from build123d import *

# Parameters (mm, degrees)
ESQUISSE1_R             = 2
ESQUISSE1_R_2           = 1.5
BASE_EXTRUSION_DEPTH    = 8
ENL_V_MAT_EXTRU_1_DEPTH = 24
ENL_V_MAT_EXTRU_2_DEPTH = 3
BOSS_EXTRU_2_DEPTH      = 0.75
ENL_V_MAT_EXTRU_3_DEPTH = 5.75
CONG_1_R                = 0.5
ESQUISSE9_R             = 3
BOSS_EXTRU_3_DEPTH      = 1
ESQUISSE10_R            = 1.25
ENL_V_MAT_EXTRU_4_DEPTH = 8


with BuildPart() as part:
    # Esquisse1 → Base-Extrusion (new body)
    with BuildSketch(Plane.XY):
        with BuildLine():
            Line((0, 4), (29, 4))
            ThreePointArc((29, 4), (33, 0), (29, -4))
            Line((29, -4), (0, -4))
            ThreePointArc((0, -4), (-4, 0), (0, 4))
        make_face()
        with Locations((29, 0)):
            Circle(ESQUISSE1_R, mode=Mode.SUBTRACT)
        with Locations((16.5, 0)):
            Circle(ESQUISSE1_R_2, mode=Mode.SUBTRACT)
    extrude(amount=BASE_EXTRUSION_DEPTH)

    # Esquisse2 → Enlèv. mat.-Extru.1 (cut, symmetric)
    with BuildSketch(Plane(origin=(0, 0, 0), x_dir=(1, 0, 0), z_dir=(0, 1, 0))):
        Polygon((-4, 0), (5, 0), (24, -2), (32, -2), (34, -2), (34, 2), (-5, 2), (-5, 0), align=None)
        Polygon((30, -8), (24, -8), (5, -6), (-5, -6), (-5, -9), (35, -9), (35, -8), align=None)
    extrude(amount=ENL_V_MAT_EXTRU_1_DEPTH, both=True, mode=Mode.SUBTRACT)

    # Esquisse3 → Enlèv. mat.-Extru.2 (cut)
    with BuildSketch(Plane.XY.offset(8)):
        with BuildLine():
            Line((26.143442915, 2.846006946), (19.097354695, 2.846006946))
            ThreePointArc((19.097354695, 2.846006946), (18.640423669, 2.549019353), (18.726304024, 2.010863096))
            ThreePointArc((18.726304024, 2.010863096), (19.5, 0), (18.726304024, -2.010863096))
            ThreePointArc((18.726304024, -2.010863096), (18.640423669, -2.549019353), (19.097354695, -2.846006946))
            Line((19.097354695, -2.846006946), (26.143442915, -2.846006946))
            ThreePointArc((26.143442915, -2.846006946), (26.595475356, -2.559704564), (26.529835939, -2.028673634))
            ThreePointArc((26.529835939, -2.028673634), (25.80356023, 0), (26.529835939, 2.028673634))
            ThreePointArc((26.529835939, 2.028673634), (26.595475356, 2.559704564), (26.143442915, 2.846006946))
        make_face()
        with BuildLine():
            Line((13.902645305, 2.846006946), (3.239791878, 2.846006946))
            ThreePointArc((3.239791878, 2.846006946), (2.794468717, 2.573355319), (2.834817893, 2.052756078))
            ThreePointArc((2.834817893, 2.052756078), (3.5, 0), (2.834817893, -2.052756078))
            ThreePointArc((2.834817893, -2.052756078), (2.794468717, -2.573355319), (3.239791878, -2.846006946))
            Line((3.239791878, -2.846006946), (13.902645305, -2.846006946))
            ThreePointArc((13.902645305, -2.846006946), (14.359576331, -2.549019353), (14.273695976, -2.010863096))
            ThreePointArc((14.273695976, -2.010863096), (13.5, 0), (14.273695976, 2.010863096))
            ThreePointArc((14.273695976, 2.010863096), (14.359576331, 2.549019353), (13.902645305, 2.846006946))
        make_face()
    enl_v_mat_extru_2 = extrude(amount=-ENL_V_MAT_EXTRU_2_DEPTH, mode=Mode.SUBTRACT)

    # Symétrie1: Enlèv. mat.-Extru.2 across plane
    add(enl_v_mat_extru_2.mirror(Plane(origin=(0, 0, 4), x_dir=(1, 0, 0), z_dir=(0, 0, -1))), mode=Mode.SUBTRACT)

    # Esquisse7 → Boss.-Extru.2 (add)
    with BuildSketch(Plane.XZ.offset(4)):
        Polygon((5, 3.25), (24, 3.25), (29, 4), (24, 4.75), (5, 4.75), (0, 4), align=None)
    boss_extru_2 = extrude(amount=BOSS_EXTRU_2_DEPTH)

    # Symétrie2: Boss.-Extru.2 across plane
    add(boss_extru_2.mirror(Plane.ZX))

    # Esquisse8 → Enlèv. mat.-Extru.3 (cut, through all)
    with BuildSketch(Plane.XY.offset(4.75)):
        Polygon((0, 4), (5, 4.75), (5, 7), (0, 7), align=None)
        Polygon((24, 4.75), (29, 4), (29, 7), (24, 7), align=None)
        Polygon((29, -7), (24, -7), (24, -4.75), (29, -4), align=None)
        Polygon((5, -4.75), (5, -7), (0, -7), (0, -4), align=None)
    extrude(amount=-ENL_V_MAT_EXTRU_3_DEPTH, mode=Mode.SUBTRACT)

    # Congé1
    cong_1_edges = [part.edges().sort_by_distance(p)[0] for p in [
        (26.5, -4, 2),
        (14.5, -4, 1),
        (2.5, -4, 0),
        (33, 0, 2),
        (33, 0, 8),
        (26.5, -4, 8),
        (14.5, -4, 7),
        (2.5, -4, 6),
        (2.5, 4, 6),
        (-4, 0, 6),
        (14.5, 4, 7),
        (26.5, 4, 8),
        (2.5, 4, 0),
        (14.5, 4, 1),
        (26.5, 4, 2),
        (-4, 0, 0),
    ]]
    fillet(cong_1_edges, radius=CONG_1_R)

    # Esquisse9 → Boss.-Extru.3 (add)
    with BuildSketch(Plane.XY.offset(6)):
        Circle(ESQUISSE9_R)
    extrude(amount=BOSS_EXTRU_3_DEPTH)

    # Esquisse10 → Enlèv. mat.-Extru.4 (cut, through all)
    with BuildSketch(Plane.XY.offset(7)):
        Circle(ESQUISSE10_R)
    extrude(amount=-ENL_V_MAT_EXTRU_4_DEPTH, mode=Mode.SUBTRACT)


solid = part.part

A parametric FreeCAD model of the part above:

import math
import FreeCAD as App
import Part
import Sketcher

V = App.Vector
Q = App.Units.Quantity


def edges_at(feature, points):
    """Names of the edges that pass closest to the given points."""
    edges = feature.Shape.Edges
    near = lambda p: min(range(len(edges)), key=lambda i: edges[i].distToShape(Part.Vertex(*p))[0])
    return sorted({f"Edge{near(p) + 1}" for p in points})


def add_polygon(sketch, points):
    """Adds a closed chain of lines whose ends are joined by coincident constraints."""
    first, n = sketch.GeometryCount, len(points)
    for a, b in zip(points, points[1:] + points[:1]):
        sketch.addGeometry(Part.LineSegment(App.Vector(*a, 0), App.Vector(*b, 0)), False)
    for i in range(n):
        sketch.addConstraint(Sketcher.Constraint("Coincident", first + i, 2, first + (i + 1) % n, 1))

doc = App.newDocument("Part")
params = doc.addObject("Spreadsheet::Sheet", "Params")
for row, (alias, value) in enumerate([
    ("sketch1_diameter", "4 mm"),
    ("sketch1_diameter2", "3 mm"),
    ("sketch1_radius", "4 mm"),
    ("sketch1_width", "29 mm"),
    ("pad1_length", "8 mm"),
    ("sketch2_width", "10 mm"),
    ("sketch2_width2", "39 mm"),
    ("sketch2_width3", "40 mm"),
    ("sketch2_height", "4 mm"),
    ("sketch2_height2", "2 mm"),
    ("pocket1_length", "48 mm"),
    ("sketch3_radius", "3 mm"),
    ("sketch3_radius2", "0.5 mm"),
    ("sketch3_radius3", "3.5 mm"),
    ("pocket2_length", "3 mm"),
    ("sketch4_width", "19 mm"),
    ("pad2_length", "0.75 mm"),
    ("sketch5_width", "5 mm"),
    ("sketch5_height", "3 mm"),
    ("sketch5_height2", "2.25 mm"),
    ("fillet_radius", "0.5 mm"),
    ("sketch6_diameter", "6 mm"),
    ("pad3_length", "1 mm"),
    ("sketch7_diameter", "2.5 mm"),
], start=1):
    params.set(f"A{row}", alias)
    params.set(f"B{row}", "=" + value)
    params.setAlias(f"B{row}", alias)

body = doc.addObject("PartDesign::Body", "Body")

# Sketch on XY plane
sketch1 = doc.addObject("Sketcher::SketchObject", "Sketch")
body.addObject(sketch1)
sketch1.AttachmentSupport = (doc.XY_Plane, [""])
sketch1.MapMode = "FlatFace"
sketch1.addGeometry(Part.LineSegment(V(29, 4, 0), V(0, 4, 0)), False)
sketch1.addGeometry(Part.ArcOfCircle(Part.Circle(V(0, 0, 0), V(0, 0, 1), 4), math.radians(90), math.radians(270)), False)
sketch1.addGeometry(Part.LineSegment(V(0, -4, 0), V(29, -4, 0)), False)
sketch1.addGeometry(Part.ArcOfCircle(Part.Circle(V(29, 0, 0), V(0, 0, 1), 4), math.radians(-90), math.radians(90)), False)
sketch1.addGeometry(Part.Circle(V(29, 0, 0), V(0, 0, 1), 2), False)
sketch1.addGeometry(Part.Circle(V(16.5, 0, 0), V(0, 0, 1), 1.5), False)
sketch1.addConstraint(Sketcher.Constraint("Tangent", 0, 2, 1, 1))
sketch1.addConstraint(Sketcher.Constraint("Tangent", 1, 2, 2, 1))
sketch1.addConstraint(Sketcher.Constraint("Tangent", 2, 2, 3, 1))
sketch1.addConstraint(Sketcher.Constraint("Tangent", 3, 2, 0, 1))
sketch1.addConstraint(Sketcher.Constraint("Horizontal", 0))
sketch1.addConstraint(Sketcher.Constraint("Horizontal", 2))
sketch1.addConstraint(Sketcher.Constraint("Coincident", 1, 3, -1, 1))
sketch1.addConstraint(Sketcher.Constraint("Coincident", 4, 3, 3, 3))
sketch1.addConstraint(Sketcher.Constraint("PointOnObject", 5, 3, -1))
sketch1.addConstraint(Sketcher.Constraint("Diameter", 4, Q("4 mm")))
sketch1.addConstraint(Sketcher.Constraint("Diameter", 5, Q("3 mm")))
sketch1.addConstraint(Sketcher.Constraint("Radius", 1, Q("4 mm")))
sketch1.addConstraint(Sketcher.Constraint("DistanceX", 0, 2, 0, 1, Q("29 mm")))
sketch1.addConstraint(Sketcher.Constraint("DistanceX", -1, 1, 5, 3, Q("16.5 mm")))
sketch1.setExpression("Constraints[9]", "Params.sketch1_diameter")
sketch1.setExpression("Constraints[10]", "Params.sketch1_diameter2")
sketch1.setExpression("Constraints[11]", "Params.sketch1_radius")
sketch1.setExpression("Constraints[12]", "Params.sketch1_width")
pad1 = doc.addObject("PartDesign::Pad", "Pad")
body.addObject(pad1)
pad1.Profile = sketch1
pad1.setExpression("Length", "Params.pad1_length")

# Sketch on XZ plane
sketch2 = doc.addObject("Sketcher::SketchObject", "Sketch001")
body.addObject(sketch2)
sketch2.AttachmentSupport = (doc.XZ_Plane, [""])
sketch2.MapMode = "FlatFace"
add_polygon(sketch2, [(5, 0), (24, 2), (34, 2), (34, -2), (-5, -2), (-5, 0)])  # lines 0-5
add_polygon(sketch2, [(24, 8), (5, 6), (-5, 6), (-5, 9), (35, 9), (35, 8)])  # lines 6-11
sketch2.addConstraint(Sketcher.Constraint("Horizontal", 1))
sketch2.addConstraint(Sketcher.Constraint("Vertical", 2))
sketch2.addConstraint(Sketcher.Constraint("Horizontal", 3))
sketch2.addConstraint(Sketcher.Constraint("Vertical", 4))
sketch2.addConstraint(Sketcher.Constraint("Horizontal", 5))
sketch2.addConstraint(Sketcher.Constraint("Horizontal", 7))
sketch2.addConstraint(Sketcher.Constraint("Vertical", 8))
sketch2.addConstraint(Sketcher.Constraint("Horizontal", 9))
sketch2.addConstraint(Sketcher.Constraint("Vertical", 10))
sketch2.addConstraint(Sketcher.Constraint("Horizontal", 11))
sketch2.addConstraint(Sketcher.Constraint("Symmetric", 4, 2, 5, 2, -1, 1))
sketch2.addConstraint(Sketcher.Constraint("Parallel", 0, 6))
sketch2.addConstraint(Sketcher.Constraint("Vertical", 5, 2, 6, 2))
sketch2.addConstraint(Sketcher.Constraint("Vertical", 4, 2, 7, 2))
sketch2.addConstraint(Sketcher.Constraint("Vertical", 0, 2, 11, 2))
sketch2.addConstraint(Sketcher.Constraint("Equal", 1, 5))
sketch2.addConstraint(Sketcher.Constraint("DistanceX", 1, 1, 1, 2, Q("10 mm")))
sketch2.addConstraint(Sketcher.Constraint("DistanceX", 3, 2, 3, 1, Q("39 mm")))
sketch2.addConstraint(Sketcher.Constraint("DistanceX", 9, 1, 9, 2, Q("40 mm")))
sketch2.addConstraint(Sketcher.Constraint("DistanceY", 2, 2, 2, 1, Q("4 mm")))
sketch2.addConstraint(Sketcher.Constraint("DistanceY", 4, 1, 4, 2, Q("2 mm")))
sketch2.addConstraint(Sketcher.Constraint("DistanceY", 8, 1, 8, 2, Q("3 mm")))
sketch2.addConstraint(Sketcher.Constraint("DistanceY", -1, 1, 6, 2, Q("6 mm")))
sketch2.setExpression("Constraints[28]", "Params.sketch2_width")
sketch2.setExpression("Constraints[29]", "Params.sketch2_width2")
sketch2.setExpression("Constraints[30]", "Params.sketch2_width3")
sketch2.setExpression("Constraints[31]", "Params.sketch2_height")
sketch2.setExpression("Constraints[32]", "Params.sketch2_height2")
pocket1 = doc.addObject("PartDesign::Pocket", "Pocket")
body.addObject(pocket1)
pocket1.Profile = sketch2
pocket1.setExpression("Length", "Params.pocket1_length")
pocket1.Midplane = True

# Sketch on XY plane
sketch3 = doc.addObject("Sketcher::SketchObject", "Sketch002")
body.addObject(sketch3)
sketch3.AttachmentSupport = (doc.XY_Plane, [""])
sketch3.MapMode = "FlatFace"
sketch3.AttachmentOffset = App.Placement(V(0, 0, 8), App.Rotation())
sketch3.addGeometry(Part.LineSegment(V(26.143443, 2.846007, 0), V(19.097355, 2.846007, 0)), False)
sketch3.addGeometry(Part.ArcOfCircle(Part.Circle(V(19.097355, 2.346007, 0), V(0, 0, 1), 0.5), math.radians(90), math.radians(222.089273)), False)
sketch3.addGeometry(Part.ArcOfCircle(Part.Circle(V(16.5, 0, 0), V(0, 0, 1), 3), math.radians(-42.089273), math.radians(42.089273)), False)
sketch3.addGeometry(Part.ArcOfCircle(Part.Circle(V(19.097355, -2.346007, 0), V(0, 0, 1), 0.5), math.radians(137.910727), math.radians(270)), False)
sketch3.addGeometry(Part.LineSegment(V(19.097355, -2.846007, 0), V(26.143443, -2.846007, 0)), False)
sketch3.addGeometry(Part.ArcOfCircle(Part.Circle(V(26.143443, -2.346007, 0), V(0, 0, 1), 0.5), math.radians(-90), math.radians(39.395263)), False)
sketch3.addGeometry(Part.ArcOfCircle(Part.Circle(V(29, 0, 0), V(0, 0, 1), 3.19644), math.radians(140.604737), math.radians(219.395263)), False)
sketch3.addGeometry(Part.ArcOfCircle(Part.Circle(V(26.143443, 2.346007, 0), V(0, 0, 1), 0.5), math.radians(-39.395263), math.radians(90)), False)
sketch3.addGeometry(Part.LineSegment(V(13.902645, 2.846007, 0), V(3.239792, 2.846007, 0)), False)
sketch3.addGeometry(Part.ArcOfCircle(Part.Circle(V(3.239792, 2.346007, 0), V(0, 0, 1), 0.5), math.radians(90), math.radians(215.909152)), False)
sketch3.addGeometry(Part.ArcOfCircle(Part.Circle(V(0, 0, 0), V(0, 0, 1), 3.5), math.radians(-35.909152), math.radians(35.909152)), False)
sketch3.addGeometry(Part.ArcOfCircle(Part.Circle(V(3.239792, -2.346007, 0), V(0, 0, 1), 0.5), math.radians(144.090848), math.radians(270)), False)
sketch3.addGeometry(Part.LineSegment(V(3.239792, -2.846007, 0), V(13.902645, -2.846007, 0)), False)
sketch3.addGeometry(Part.ArcOfCircle(Part.Circle(V(13.902645, -2.346007, 0), V(0, 0, 1), 0.5), math.radians(-90), math.radians(42.089273)), False)
sketch3.addGeometry(Part.ArcOfCircle(Part.Circle(V(16.5, 0, 0), V(0, 0, 1), 3), math.radians(137.910727), math.radians(222.089273)), False)
sketch3.addGeometry(Part.ArcOfCircle(Part.Circle(V(13.902645, 2.346007, 0), V(0, 0, 1), 0.5), math.radians(-42.089273), math.radians(90)), False)
sketch3.addConstraint(Sketcher.Constraint("Tangent", 0, 2, 1, 1))
sketch3.addConstraint(Sketcher.Constraint("Tangent", 1, 2, 2, 2))
sketch3.addConstraint(Sketcher.Constraint("Tangent", 2, 1, 3, 1))
sketch3.addConstraint(Sketcher.Constraint("Tangent", 3, 2, 4, 1))
sketch3.addConstraint(Sketcher.Constraint("Tangent", 4, 2, 5, 1))
sketch3.addConstraint(Sketcher.Constraint("Tangent", 5, 2, 6, 2))
sketch3.addConstraint(Sketcher.Constraint("Tangent", 6, 1, 7, 1))
sketch3.addConstraint(Sketcher.Constraint("Tangent", 7, 2, 0, 1))
sketch3.addConstraint(Sketcher.Constraint("Tangent", 8, 2, 9, 1))
sketch3.addConstraint(Sketcher.Constraint("Tangent", 9, 2, 10, 2))
sketch3.addConstraint(Sketcher.Constraint("Tangent", 10, 1, 11, 1))
sketch3.addConstraint(Sketcher.Constraint("Tangent", 11, 2, 12, 1))
sketch3.addConstraint(Sketcher.Constraint("Tangent", 12, 2, 13, 1))
sketch3.addConstraint(Sketcher.Constraint("Tangent", 13, 2, 14, 2))
sketch3.addConstraint(Sketcher.Constraint("Tangent", 14, 1, 15, 1))
sketch3.addConstraint(Sketcher.Constraint("Tangent", 15, 2, 8, 1))
sketch3.addConstraint(Sketcher.Constraint("Horizontal", 0))
sketch3.addConstraint(Sketcher.Constraint("Horizontal", 4))
sketch3.addConstraint(Sketcher.Constraint("Horizontal", 8))
sketch3.addConstraint(Sketcher.Constraint("Horizontal", 12))
sketch3.addConstraint(Sketcher.Constraint("Coincident", 10, 3, -1, 1))
sketch3.addConstraint(Sketcher.Constraint("Coincident", 14, 3, 2, 3))
sketch3.addConstraint(Sketcher.Constraint("Equal", 1, 3))
sketch3.addConstraint(Sketcher.Constraint("Equal", 3, 5))
sketch3.addConstraint(Sketcher.Constraint("Equal", 5, 7))
sketch3.addConstraint(Sketcher.Constraint("Equal", 7, 9))
sketch3.addConstraint(Sketcher.Constraint("Equal", 9, 11))
sketch3.addConstraint(Sketcher.Constraint("Equal", 11, 13))
sketch3.addConstraint(Sketcher.Constraint("Equal", 2, 14))
sketch3.addConstraint(Sketcher.Constraint("Equal", 13, 15))
sketch3.addConstraint(Sketcher.Constraint("Symmetric", 1, 3, 3, 3, -1))
sketch3.addConstraint(Sketcher.Constraint("PointOnObject", 6, 3, -1))
sketch3.addConstraint(Sketcher.Constraint("Horizontal", 7, 3, 9, 3))
sketch3.addConstraint(Sketcher.Constraint("Horizontal", 5, 3, 11, 3))
sketch3.addConstraint(Sketcher.Constraint("Radius", 2, Q("3 mm")))
sketch3.addConstraint(Sketcher.Constraint("Radius", 1, Q("0.5 mm")))
sketch3.addConstraint(Sketcher.Constraint("Radius", 10, Q("3.5 mm")))
sketch3.addConstraint(Sketcher.Constraint("DistanceX", -1, 1, 6, 3, Q("29 mm")))
sketch3.addConstraint(Sketcher.Constraint("DistanceX", -1, 1, 2, 3, Q("16.5 mm")))
sketch3.addConstraint(Sketcher.Constraint("Radius", 6, Q("3.19644 mm")))
sketch3.addConstraint(Sketcher.Constraint("DistanceX", 0, 2, 0, 1, Q("7.046088 mm")))
sketch3.setExpression("Constraints[34]", "Params.sketch3_radius")
sketch3.setExpression("Constraints[35]", "Params.sketch3_radius2")
sketch3.setExpression("Constraints[36]", "Params.sketch3_radius3")
pocket2 = doc.addObject("PartDesign::Pocket", "Pocket001")
body.addObject(pocket2)
pocket2.Profile = sketch3
pocket2.setExpression("Length", "Params.pocket2_length")
doc.recompute()

datumplane = doc.addObject("PartDesign::Plane", "DatumPlane")
body.addObject(datumplane)
datumplane.AttachmentSupport = (doc.XY_Plane, [""])
datumplane.MapMode = "FlatFace"
datumplane.AttachmentOffset = App.Placement(V(0, 0, 4), App.Rotation())
mirrored = doc.addObject("PartDesign::Mirrored", "Mirrored")
body.addObject(mirrored)
mirrored.Originals = [pocket2]
mirrored.MirrorPlane = (datumplane, [""])
body.Tip = mirrored

# Sketch on XZ plane
sketch4 = doc.addObject("Sketcher::SketchObject", "Sketch003")
body.addObject(sketch4)
sketch4.AttachmentSupport = (doc.XZ_Plane, [""])
sketch4.MapMode = "FlatFace"
sketch4.AttachmentOffset = App.Placement(V(0, 0, 4), App.Rotation())
add_polygon(sketch4, [(5, 3.25), (24, 3.25), (29, 4), (24, 4.75), (5, 4.75), (0, 4)])  # lines 0-5
sketch4.addConstraint(Sketcher.Constraint("Horizontal", 0))
sketch4.addConstraint(Sketcher.Constraint("Horizontal", 3))
sketch4.addConstraint(Sketcher.Constraint("PointOnObject", 4, 2, -2))
sketch4.addConstraint(Sketcher.Constraint("Parallel", 1, 4))
sketch4.addConstraint(Sketcher.Constraint("Parallel", 2, 5))
sketch4.addConstraint(Sketcher.Constraint("Horizontal", 1, 2, 4, 2))
sketch4.addConstraint(Sketcher.Constraint("Vertical", 0, 2, 2, 2))
sketch4.addConstraint(Sketcher.Constraint("Vertical", 3, 2, 5, 2))
sketch4.addConstraint(Sketcher.Constraint("DistanceX", 0, 1, 0, 2, Q("19 mm")))
sketch4.addConstraint(Sketcher.Constraint("DistanceX", -1, 1, 0, 2, Q("24 mm")))
sketch4.addConstraint(Sketcher.Constraint("DistanceY", -1, 1, 1, 2, Q("4 mm")))
sketch4.addConstraint(Sketcher.Constraint("DistanceY", 0, 2, 2, 2, Q("1.5 mm")))
sketch4.setExpression("Constraints[14]", "Params.sketch4_width")
pad2 = doc.addObject("PartDesign::Pad", "Pad001")
body.addObject(pad2)
pad2.Profile = sketch4
pad2.setExpression("Length", "Params.pad2_length")
doc.recompute()

mirrored2 = doc.addObject("PartDesign::Mirrored", "Mirrored001")
body.addObject(mirrored2)
mirrored2.Originals = [pad2]
mirrored2.MirrorPlane = (doc.XZ_Plane, [""])
body.Tip = mirrored2

# Sketch on XY plane
sketch5 = doc.addObject("Sketcher::SketchObject", "Sketch004")
body.addObject(sketch5)
sketch5.AttachmentSupport = (doc.XY_Plane, [""])
sketch5.MapMode = "FlatFace"
sketch5.AttachmentOffset = App.Placement(V(0, 0, 4.75), App.Rotation())
add_polygon(sketch5, [(0, 4), (5, 4.75), (5, 7), (0, 7)])  # lines 0-3
add_polygon(sketch5, [(24, 4.75), (29, 4), (29, 7), (24, 7)])  # lines 4-7
add_polygon(sketch5, [(24, -7), (29, -7), (29, -4), (24, -4.75)])  # lines 8-11
add_polygon(sketch5, [(5, -7), (5, -4.75), (0, -4), (0, -7)])  # lines 12-15
sketch5.addConstraint(Sketcher.Constraint("Vertical", 1))
sketch5.addConstraint(Sketcher.Constraint("Horizontal", 2))
sketch5.addConstraint(Sketcher.Constraint("Vertical", 3))
sketch5.addConstraint(Sketcher.Constraint("Vertical", 5))
sketch5.addConstraint(Sketcher.Constraint("Horizontal", 6))
sketch5.addConstraint(Sketcher.Constraint("Vertical", 7))
sketch5.addConstraint(Sketcher.Constraint("Horizontal", 8))
sketch5.addConstraint(Sketcher.Constraint("Vertical", 9))
sketch5.addConstraint(Sketcher.Constraint("Vertical", 11))
sketch5.addConstraint(Sketcher.Constraint("Vertical", 12))
sketch5.addConstraint(Sketcher.Constraint("Vertical", 14))
sketch5.addConstraint(Sketcher.Constraint("Horizontal", 15))
sketch5.addConstraint(Sketcher.Constraint("Symmetric", 3, 2, 13, 2, -1, 1))
sketch5.addConstraint(Sketcher.Constraint("Symmetric", 5, 2, 8, 2, -1))
sketch5.addConstraint(Sketcher.Constraint("Symmetric", 7, 2, 10, 2, -1))
sketch5.addConstraint(Sketcher.Constraint("Symmetric", 0, 2, 12, 2, -1))
sketch5.addConstraint(Sketcher.Constraint("Symmetric", 2, 2, 14, 2, -1))
sketch5.addConstraint(Sketcher.Constraint("Parallel", 0, 10))
sketch5.addConstraint(Sketcher.Constraint("Parallel", 4, 13))
sketch5.addConstraint(Sketcher.Constraint("Horizontal", 3, 2, 4, 2))
sketch5.addConstraint(Sketcher.Constraint("Horizontal", 2, 2, 5, 2))
sketch5.addConstraint(Sketcher.Constraint("Horizontal", 0, 2, 7, 2))
sketch5.addConstraint(Sketcher.Constraint("DistanceX", 2, 2, 2, 1, Q("5 mm")))
sketch5.addConstraint(Sketcher.Constraint("DistanceY", 3, 2, 3, 1, Q("3 mm")))
sketch5.addConstraint(Sketcher.Constraint("DistanceY", -1, 1, 1, 2, Q("7 mm")))
sketch5.addConstraint(Sketcher.Constraint("DistanceX", -1, 1, 4, 2, Q("29 mm")))
sketch5.addConstraint(Sketcher.Constraint("DistanceY", 1, 1, 1, 2, Q("2.25 mm")))
sketch5.setExpression("Constraints[38]", "Params.sketch5_width")
sketch5.setExpression("Constraints[39]", "Params.sketch5_height")
sketch5.setExpression("Constraints[42]", "Params.sketch5_height2")
pocket3 = doc.addObject("PartDesign::Pocket", "Pocket002")
body.addObject(pocket3)
pocket3.Profile = sketch5
pocket3.Type = "ThroughAll"
doc.recompute()

fillet = doc.addObject("PartDesign::Fillet", "Fillet")
body.addObject(fillet)
fillet.Base = (pocket3, edges_at(pocket3, [
    (26.5, -4, 2),
    (14.5, -4, 1),
    (2.5, -4, 0),
    (33, 0, 2),
    (33, 0, 8),
    (26.5, -4, 8),
    (14.5, -4, 7),
    (2.5, -4, 6),
    (2.5, 4, 6),
    (-4, 0, 6),
    (14.5, 4, 7),
    (26.5, 4, 8),
    (2.5, 4, 0),
    (14.5, 4, 1),
    (26.5, 4, 2),
    (-4, 0, 0),
]))
fillet.setExpression("Radius", "Params.fillet_radius")

# Sketch on XY plane
sketch6 = doc.addObject("Sketcher::SketchObject", "Sketch005")
body.addObject(sketch6)
sketch6.AttachmentSupport = (doc.XY_Plane, [""])
sketch6.MapMode = "FlatFace"
sketch6.AttachmentOffset = App.Placement(V(0, 0, 6), App.Rotation())
sketch6.addGeometry(Part.Circle(V(0, 0, 0), V(0, 0, 1), 3), False)
sketch6.addConstraint(Sketcher.Constraint("Coincident", 0, 3, -1, 1))
sketch6.addConstraint(Sketcher.Constraint("Diameter", 0, Q("6 mm")))
sketch6.setExpression("Constraints[1]", "Params.sketch6_diameter")
pad3 = doc.addObject("PartDesign::Pad", "Pad002")
body.addObject(pad3)
pad3.Profile = sketch6
pad3.setExpression("Length", "Params.pad3_length")

# Sketch on XY plane
sketch7 = doc.addObject("Sketcher::SketchObject", "Sketch006")
body.addObject(sketch7)
sketch7.AttachmentSupport = (doc.XY_Plane, [""])
sketch7.MapMode = "FlatFace"
sketch7.AttachmentOffset = App.Placement(V(0, 0, 7), App.Rotation())
sketch7.addGeometry(Part.Circle(V(0, 0, 0), V(0, 0, 1), 1.25), False)
sketch7.addConstraint(Sketcher.Constraint("Coincident", 0, 3, -1, 1))
sketch7.addConstraint(Sketcher.Constraint("Diameter", 0, Q("2.5 mm")))
sketch7.setExpression("Constraints[1]", "Params.sketch7_diameter")
pocket4 = doc.addObject("PartDesign::Pocket", "Pocket003")
body.addObject(pocket4)
pocket4.Profile = sketch7
pocket4.Type = "ThroughAll"

doc.recompute()
